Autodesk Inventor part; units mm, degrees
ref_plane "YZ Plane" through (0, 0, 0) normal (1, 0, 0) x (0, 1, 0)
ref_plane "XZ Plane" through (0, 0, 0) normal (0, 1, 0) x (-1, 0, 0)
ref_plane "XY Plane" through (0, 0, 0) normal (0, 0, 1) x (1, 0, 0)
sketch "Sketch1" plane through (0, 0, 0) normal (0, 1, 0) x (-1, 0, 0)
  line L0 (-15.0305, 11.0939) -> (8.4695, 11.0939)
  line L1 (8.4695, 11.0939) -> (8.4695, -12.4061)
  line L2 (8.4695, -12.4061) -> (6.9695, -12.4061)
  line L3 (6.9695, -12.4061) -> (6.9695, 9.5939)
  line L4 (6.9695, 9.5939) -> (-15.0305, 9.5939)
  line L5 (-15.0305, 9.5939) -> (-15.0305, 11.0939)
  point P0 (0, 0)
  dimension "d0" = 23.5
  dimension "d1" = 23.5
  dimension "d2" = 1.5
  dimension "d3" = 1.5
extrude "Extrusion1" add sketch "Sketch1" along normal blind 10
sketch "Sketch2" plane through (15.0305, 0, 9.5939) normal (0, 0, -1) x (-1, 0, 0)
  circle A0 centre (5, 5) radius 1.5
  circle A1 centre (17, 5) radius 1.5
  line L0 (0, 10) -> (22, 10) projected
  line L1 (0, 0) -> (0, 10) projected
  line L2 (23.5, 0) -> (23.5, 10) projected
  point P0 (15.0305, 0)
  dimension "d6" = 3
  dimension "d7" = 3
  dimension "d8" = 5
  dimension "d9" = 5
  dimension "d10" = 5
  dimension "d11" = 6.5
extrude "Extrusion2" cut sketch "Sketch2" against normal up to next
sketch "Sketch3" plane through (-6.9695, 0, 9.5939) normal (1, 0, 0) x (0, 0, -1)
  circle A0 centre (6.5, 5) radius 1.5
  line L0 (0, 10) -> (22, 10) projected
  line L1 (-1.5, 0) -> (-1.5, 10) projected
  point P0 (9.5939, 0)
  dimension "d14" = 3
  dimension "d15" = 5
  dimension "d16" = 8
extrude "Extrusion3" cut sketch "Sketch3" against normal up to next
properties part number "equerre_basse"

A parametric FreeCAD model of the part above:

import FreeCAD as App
import Part
import Sketcher

V = App.Vector

doc = App.newDocument("Part")
params = doc.addObject("Spreadsheet::Sheet", "Params")
for row, (alias, value) in enumerate([
    ("sketch1_width", "23.5 mm"),
    ("sketch1_width2", "1.5 mm"),
    ("pad1_length", "10 mm"),
    ("sketch2_diameter", "3 mm"),
    ("sketch3_diameter", "3 mm"),
], start=1):
    params.set(f"A{row}", alias)
    params.set(f"B{row}", "=" + value)
    params.setAlias(f"B{row}", alias)

body = doc.addObject("PartDesign::Body", "Body")

# Sketch on XZ plane
sketch1 = body.newObject("Sketcher::SketchObject", "Sketch")
sketch1.AttachmentSupport = (doc.getObject("XZ_Plane"), [""])
sketch1.MapMode = "FlatFace"
sketch1.addGeometry([
    Part.LineSegment(V(-8.5, 11.1, 0), V(15, 11.1, 0)),  # 0
    Part.LineSegment(V(15, 11.1, 0), V(15, 9.6, 0)),  # 1
    Part.LineSegment(V(15, 9.6, 0), V(-7, 9.6, 0)),  # 2
    Part.LineSegment(V(-7, 9.6, 0), V(-7, -12.4, 0)),  # 3
    Part.LineSegment(V(-7, -12.4, 0), V(-8.5, -12.4, 0)),  # 4
    Part.LineSegment(V(-8.5, -12.4, 0), V(-8.5, 11.1, 0)),  # 5
], False)
sketch1.addConstraint([
    Sketcher.Constraint("Coincident", 0, 2, 1, 1),
    Sketcher.Constraint("Coincident", 1, 2, 2, 1),
    Sketcher.Constraint("Coincident", 2, 2, 3, 1),
    Sketcher.Constraint("Coincident", 3, 2, 4, 1),
    Sketcher.Constraint("Coincident", 4, 2, 5, 1),
    Sketcher.Constraint("Coincident", 5, 2, 0, 1),
    Sketcher.Constraint("Horizontal", 0),
    Sketcher.Constraint("Vertical", 1),
    Sketcher.Constraint("Horizontal", 2),
    Sketcher.Constraint("Vertical", 3),
    Sketcher.Constraint("Horizontal", 4),
    Sketcher.Constraint("Vertical", 5),
    Sketcher.Constraint("Equal", 4, 1),
    Sketcher.Constraint("Equal", 2, 3),
    Sketcher.Constraint("DistanceX", 0, 1, 0, 2, 23.5),
    Sketcher.Constraint("DistanceX", 4, 2, 4, 1, 1.5),
    Sketcher.Constraint("DistanceY", -1, 1, 0, 2, 11.094),
    Sketcher.Constraint("DistanceX", -1, 1, 0, 2, 15.0305),
])
sketch1.setExpression("Constraints[14]", "Params.sketch1_width")
sketch1.setExpression("Constraints[15]", "Params.sketch1_width2")
pad1 = body.newObject("PartDesign::Pad", "Pad")
pad1.Profile = sketch1
pad1.setExpression("Length", "Params.pad1_length")
pad1.Reversed = True

# Sketch on XY plane
sketch2 = body.newObject("Sketcher::SketchObject", "Sketch001")
sketch2.AttachmentSupport = (doc.getObject("XY_Plane"), [""])
sketch2.MapMode = "FlatFace"
sketch2.AttachmentOffset = App.Placement(V(0, 0, 9.5939), App.Rotation())
sketch2.addGeometry([
    Part.Circle(V(10, 5, 0), V(0, 0, 1), 1.5),
    Part.Circle(V(-2, 5, 0), V(0, 0, 1), 1.5),
], False)
sketch2.addConstraint([
    Sketcher.Constraint("Equal", 0, 1),
    Sketcher.Constraint("Horizontal", 0, 3, 1, 3),
    Sketcher.Constraint("Diameter", 0, 3.0),
    Sketcher.Constraint("DistanceY", -1, 1, 0, 3, 5.0),
    Sketcher.Constraint("DistanceX", 1, 3, 0, 3, 12.0),
    Sketcher.Constraint("DistanceX", -1, 1, 0, 3, 10.0305),
])
sketch2.setExpression("Constraints[2]", "Params.sketch2_diameter")
pocket1 = body.newObject("PartDesign::Pocket", "Pocket")
pocket1.Profile = sketch2
pocket1.Type = "UpToFirst"
pocket1.Reversed = True

# Sketch on YZ plane
sketch3 = body.newObject("Sketcher::SketchObject", "Sketch002")
sketch3.AttachmentSupport = (doc.getObject("YZ_Plane"), [""])
sketch3.MapMode = "FlatFace"
sketch3.AttachmentOffset = App.Placement(V(0, 0, -6.9695), App.Rotation())
sketch3.addGeometry(Part.Circle(V(5, 3.1, 0), V(0, 0, 1), 1.5), False)
sketch3.addConstraint([
    Sketcher.Constraint("Diameter", 0, 3.0),
    Sketcher.Constraint("DistanceX", -1, 1, 0, 3, 5.0),
    Sketcher.Constraint("DistanceY", -1, 1, 0, 3, 3.094),
])
sketch3.setExpression("Constraints[0]", "Params.sketch3_diameter")
pocket2 = body.newObject("PartDesign::Pocket", "Pocket001")
pocket2.Profile = sketch3
pocket2.Type = "UpToFirst"

doc.recompute()
